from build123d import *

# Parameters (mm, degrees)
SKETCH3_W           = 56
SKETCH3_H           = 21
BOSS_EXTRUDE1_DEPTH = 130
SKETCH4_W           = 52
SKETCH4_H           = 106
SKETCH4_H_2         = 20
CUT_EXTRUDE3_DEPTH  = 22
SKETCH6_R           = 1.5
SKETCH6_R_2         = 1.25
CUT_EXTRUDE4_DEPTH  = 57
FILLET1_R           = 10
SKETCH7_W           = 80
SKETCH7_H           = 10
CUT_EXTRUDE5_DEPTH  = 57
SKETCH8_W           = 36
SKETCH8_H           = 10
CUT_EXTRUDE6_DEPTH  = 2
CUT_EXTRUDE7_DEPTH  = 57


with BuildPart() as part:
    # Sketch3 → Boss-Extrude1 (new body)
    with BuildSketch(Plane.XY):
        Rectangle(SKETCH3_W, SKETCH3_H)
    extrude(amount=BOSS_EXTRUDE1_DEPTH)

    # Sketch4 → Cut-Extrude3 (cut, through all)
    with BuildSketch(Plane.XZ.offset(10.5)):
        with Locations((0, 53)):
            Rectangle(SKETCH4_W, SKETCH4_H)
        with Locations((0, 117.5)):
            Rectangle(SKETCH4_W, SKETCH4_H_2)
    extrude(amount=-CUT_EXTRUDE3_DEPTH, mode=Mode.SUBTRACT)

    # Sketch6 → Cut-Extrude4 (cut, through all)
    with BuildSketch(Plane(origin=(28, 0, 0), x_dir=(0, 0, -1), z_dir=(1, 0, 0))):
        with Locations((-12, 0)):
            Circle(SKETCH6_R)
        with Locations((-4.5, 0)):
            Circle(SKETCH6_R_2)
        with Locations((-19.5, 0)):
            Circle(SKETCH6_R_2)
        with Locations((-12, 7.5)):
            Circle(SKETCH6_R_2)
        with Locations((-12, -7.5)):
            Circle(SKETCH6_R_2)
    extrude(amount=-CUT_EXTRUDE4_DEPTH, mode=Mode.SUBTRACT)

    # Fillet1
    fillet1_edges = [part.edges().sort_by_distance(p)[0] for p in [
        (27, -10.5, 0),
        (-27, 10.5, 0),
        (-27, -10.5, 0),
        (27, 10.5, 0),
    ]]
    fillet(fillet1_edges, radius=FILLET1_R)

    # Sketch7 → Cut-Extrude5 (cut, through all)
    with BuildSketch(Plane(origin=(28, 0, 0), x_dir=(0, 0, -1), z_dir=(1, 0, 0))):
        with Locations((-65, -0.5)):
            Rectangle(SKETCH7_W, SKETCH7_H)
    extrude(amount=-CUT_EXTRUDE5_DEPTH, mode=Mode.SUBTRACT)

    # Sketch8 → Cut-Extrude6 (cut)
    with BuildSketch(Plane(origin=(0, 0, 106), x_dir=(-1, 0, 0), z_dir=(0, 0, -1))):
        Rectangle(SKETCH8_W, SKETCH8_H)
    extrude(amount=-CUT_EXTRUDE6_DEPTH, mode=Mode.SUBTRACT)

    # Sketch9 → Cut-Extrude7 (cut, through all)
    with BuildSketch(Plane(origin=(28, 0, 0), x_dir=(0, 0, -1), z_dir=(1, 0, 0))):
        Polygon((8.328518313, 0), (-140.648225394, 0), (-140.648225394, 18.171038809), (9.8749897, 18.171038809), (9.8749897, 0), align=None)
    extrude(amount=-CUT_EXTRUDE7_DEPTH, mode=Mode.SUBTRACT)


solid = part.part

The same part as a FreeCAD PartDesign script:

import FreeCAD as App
import Part
import Sketcher

V = App.Vector


def edges_at(feature, points):
    """Names of the edges that pass closest to the given points."""
    edges = feature.Shape.Edges
    near = lambda p: min(range(len(edges)), key=lambda i: edges[i].distToShape(Part.Vertex(*p))[0])
    return sorted({f"Edge{near(p) + 1}" for p in points})


def add_polygon(sketch, points):
    """Adds a closed chain of lines whose ends are joined by coincident constraints."""
    first, n = sketch.GeometryCount, len(points)
    for a, b in zip(points, points[1:] + points[:1]):
        sketch.addGeometry(Part.LineSegment(App.Vector(*a, 0), App.Vector(*b, 0)), False)
    for i in range(n):
        sketch.addConstraint(Sketcher.Constraint("Coincident", first + i, 2, first + (i + 1) % n, 1))

doc = App.newDocument("Part")
body = doc.addObject("PartDesign::Body", "Body")

sketch1 = body.newObject("Sketcher::SketchObject", "Sketch")
sketch1.AttachmentSupport = (doc.getObject("XY_Plane"), [""])
sketch1.MapMode = "FlatFace"
add_polygon(sketch1, [(-28, 10.5), (-28, -10.5), (28, -10.5), (28, 10.5)])
sketch1.addConstraint([
    Sketcher.Constraint("Vertical", 0),
    Sketcher.Constraint("Horizontal", 1),
    Sketcher.Constraint("Vertical", 2),
    Sketcher.Constraint("Horizontal", 3),
    Sketcher.Constraint("Symmetric", 0, 2, 2, 2, -1, 1),
    Sketcher.Constraint("DistanceX", 1, 1, 1, 2, 56.0),
    Sketcher.Constraint("DistanceY", 0, 2, 0, 1, 21.0),
])
pad1 = body.newObject("PartDesign::Pad", "Pad")
pad1.Profile = sketch1
pad1.Length = 130

sketch2 = body.newObject("Sketcher::SketchObject", "Sketch001")
sketch2.AttachmentSupport = (doc.getObject("XZ_Plane"), [""])
sketch2.MapMode = "FlatFace"
sketch2.AttachmentOffset = App.Placement(V(0, 0, 10.5), App.Rotation())
add_polygon(sketch2, [(-26, 106), (-26, 0), (26, 0), (26, 106)])
add_polygon(sketch2, [(-26, 127.5), (-26, 107.5), (26, 107.5), (26, 127.5)])
sketch2.addConstraint([
    Sketcher.Constraint("Vertical", 0),
    Sketcher.Constraint("Horizontal", 1),
    Sketcher.Constraint("Vertical", 2),
    Sketcher.Constraint("Horizontal", 3),
    Sketcher.Constraint("Vertical", 4),
    Sketcher.Constraint("Horizontal", 5),
    Sketcher.Constraint("Vertical", 6),
    Sketcher.Constraint("Horizontal", 7),
    Sketcher.Constraint("Symmetric", 0, 2, 1, 2, -1, 1),
    Sketcher.Constraint("Vertical", 3, 2, 4, 2),
    Sketcher.Constraint("Vertical", 2, 2, 5, 2),
    Sketcher.Constraint("DistanceX", 1, 1, 1, 2, 52.0),
    Sketcher.Constraint("DistanceY", 0, 2, 0, 1, 106.0),
    Sketcher.Constraint("DistanceY", 4, 2, 4, 1, 20.0),
    Sketcher.Constraint("DistanceY", -1, 1, 4, 2, 107.5),
])
pocket1 = body.newObject("PartDesign::Pocket", "Pocket")
pocket1.Profile = sketch2
pocket1.Type = "ThroughAll"

sketch3 = body.newObject("Sketcher::SketchObject", "Sketch002")
sketch3.AttachmentSupport = (doc.getObject("YZ_Plane"), [""])
sketch3.MapMode = "FlatFace"
sketch3.AttachmentOffset = App.Placement(V(0, 0, 28), App.Rotation())
sketch3.addGeometry([
    Part.Circle(V(0, 12, 0), V(0, 0, 1), 1.5),
    Part.Circle(V(0, 4.5, 0), V(0, 0, 1), 1.25),
    Part.Circle(V(0, 19.5, 0), V(0, 0, 1), 1.25),
    Part.Circle(V(7.5, 12, 0), V(0, 0, 1), 1.25),
    Part.Circle(V(-7.5, 12, 0), V(0, 0, 1), 1.25),
], False)
sketch3.addConstraint([
    Sketcher.Constraint("Equal", 1, 2),
    Sketcher.Constraint("Equal", 2, 3),
    Sketcher.Constraint("Equal", 3, 4),
    Sketcher.Constraint("Symmetric", 3, 3, 4, 3, -2),
    Sketcher.Constraint("PointOnObject", 0, 3, -2),
    Sketcher.Constraint("PointOnObject", 1, 3, -2),
    Sketcher.Constraint("PointOnObject", 2, 3, -2),
    Sketcher.Constraint("Horizontal", 0, 3, 3, 3),
    Sketcher.Constraint("Diameter", 0, 3.0),
    Sketcher.Constraint("Diameter", 1, 2.5),
    Sketcher.Constraint("DistanceY", -1, 1, 0, 3, 12.0),
    Sketcher.Constraint("DistanceY", 1, 3, 2, 3, 15.0),
    Sketcher.Constraint("DistanceX", 4, 3, 3, 3, 15.0),
    Sketcher.Constraint("DistanceY", -1, 1, 1, 3, 4.5),
])
pocket2 = body.newObject("PartDesign::Pocket", "Pocket001")
pocket2.Profile = sketch3
pocket2.Type = "ThroughAll"
doc.recompute()

fillet = body.newObject("PartDesign::Fillet", "Fillet")
fillet.Base = (pocket2, edges_at(pocket2, [
    (27, -10.5, 0),
    (-27, 10.5, 0),
    (-27, -10.5, 0),
    (27, 10.5, 0),
]))
fillet.Radius = 10

sketch4 = body.newObject("Sketcher::SketchObject", "Sketch003")
sketch4.AttachmentSupport = (doc.getObject("YZ_Plane"), [""])
sketch4.MapMode = "FlatFace"
sketch4.AttachmentOffset = App.Placement(V(0, 0, 28), App.Rotation())
add_polygon(sketch4, [(4.5, 105), (-5.5, 105), (-5.5, 25), (4.5, 25)])
sketch4.addConstraint([
    Sketcher.Constraint("Horizontal", 0),
    Sketcher.Constraint("Vertical", 1),
    Sketcher.Constraint("Horizontal", 2),
    Sketcher.Constraint("Vertical", 3),
    Sketcher.Constraint("DistanceX", 0, 2, 0, 1, 10.0),
    Sketcher.Constraint("DistanceY", 1, 2, 1, 1, 80.0),
    Sketcher.Constraint("DistanceY", -1, 1, 0, 2, 105.0),
    Sketcher.Constraint("DistanceX", 0, 2, -1, 1, 5.5),
])
pocket3 = body.newObject("PartDesign::Pocket", "Pocket002")
pocket3.Profile = sketch4
pocket3.Type = "ThroughAll"

sketch5 = body.newObject("Sketcher::SketchObject", "Sketch004")
sketch5.AttachmentSupport = (doc.getObject("XY_Plane"), [""])
sketch5.MapMode = "FlatFace"
sketch5.AttachmentOffset = App.Placement(V(0, 0, 106), App.Rotation())
add_polygon(sketch5, [(18, 5), (18, -5), (-18, -5), (-18, 5)])
sketch5.addConstraint([
    Sketcher.Constraint("Vertical", 0),
    Sketcher.Constraint("Horizontal", 1),
    Sketcher.Constraint("Vertical", 2),
    Sketcher.Constraint("Horizontal", 3),
    Sketcher.Constraint("Symmetric", 0, 2, 2, 2, -1, 1),
    Sketcher.Constraint("DistanceX", 1, 2, 1, 1, 36.0),
    Sketcher.Constraint("DistanceY", 0, 2, 0, 1, 10.0),
])
pocket4 = body.newObject("PartDesign::Pocket", "Pocket003")
pocket4.Profile = sketch5
pocket4.Length = 2
pocket4.Reversed = True

sketch6 = body.newObject("Sketcher::SketchObject", "Sketch005")
sketch6.AttachmentSupport = (doc.getObject("YZ_Plane"), [""])
sketch6.MapMode = "FlatFace"
sketch6.AttachmentOffset = App.Placement(V(0, 0, 28), App.Rotation())
add_polygon(sketch6, [(0, 140.648225), (0, -9.87499), (18.171039, -9.87499), (18.171039, 140.648225)])
sketch6.addConstraint([
    Sketcher.Constraint("Vertical", 0),
    Sketcher.Constraint("Horizontal", 1),
    Sketcher.Constraint("Vertical", 2),
    Sketcher.Constraint("Horizontal", 3),
    Sketcher.Constraint("PointOnObject", 0, 2, -2),
    Sketcher.Constraint("DistanceX", 1, 1, 1, 2, 18.171039),
    Sketcher.Constraint("DistanceY", 0, 2, 0, 1, 150.523215),
    Sketcher.Constraint("DistanceY", 0, 2, -1, 1, 9.87499),
])
pocket5 = body.newObject("PartDesign::Pocket", "Pocket004")
pocket5.Profile = sketch6
pocket5.Type = "ThroughAll"

doc.recompute()
